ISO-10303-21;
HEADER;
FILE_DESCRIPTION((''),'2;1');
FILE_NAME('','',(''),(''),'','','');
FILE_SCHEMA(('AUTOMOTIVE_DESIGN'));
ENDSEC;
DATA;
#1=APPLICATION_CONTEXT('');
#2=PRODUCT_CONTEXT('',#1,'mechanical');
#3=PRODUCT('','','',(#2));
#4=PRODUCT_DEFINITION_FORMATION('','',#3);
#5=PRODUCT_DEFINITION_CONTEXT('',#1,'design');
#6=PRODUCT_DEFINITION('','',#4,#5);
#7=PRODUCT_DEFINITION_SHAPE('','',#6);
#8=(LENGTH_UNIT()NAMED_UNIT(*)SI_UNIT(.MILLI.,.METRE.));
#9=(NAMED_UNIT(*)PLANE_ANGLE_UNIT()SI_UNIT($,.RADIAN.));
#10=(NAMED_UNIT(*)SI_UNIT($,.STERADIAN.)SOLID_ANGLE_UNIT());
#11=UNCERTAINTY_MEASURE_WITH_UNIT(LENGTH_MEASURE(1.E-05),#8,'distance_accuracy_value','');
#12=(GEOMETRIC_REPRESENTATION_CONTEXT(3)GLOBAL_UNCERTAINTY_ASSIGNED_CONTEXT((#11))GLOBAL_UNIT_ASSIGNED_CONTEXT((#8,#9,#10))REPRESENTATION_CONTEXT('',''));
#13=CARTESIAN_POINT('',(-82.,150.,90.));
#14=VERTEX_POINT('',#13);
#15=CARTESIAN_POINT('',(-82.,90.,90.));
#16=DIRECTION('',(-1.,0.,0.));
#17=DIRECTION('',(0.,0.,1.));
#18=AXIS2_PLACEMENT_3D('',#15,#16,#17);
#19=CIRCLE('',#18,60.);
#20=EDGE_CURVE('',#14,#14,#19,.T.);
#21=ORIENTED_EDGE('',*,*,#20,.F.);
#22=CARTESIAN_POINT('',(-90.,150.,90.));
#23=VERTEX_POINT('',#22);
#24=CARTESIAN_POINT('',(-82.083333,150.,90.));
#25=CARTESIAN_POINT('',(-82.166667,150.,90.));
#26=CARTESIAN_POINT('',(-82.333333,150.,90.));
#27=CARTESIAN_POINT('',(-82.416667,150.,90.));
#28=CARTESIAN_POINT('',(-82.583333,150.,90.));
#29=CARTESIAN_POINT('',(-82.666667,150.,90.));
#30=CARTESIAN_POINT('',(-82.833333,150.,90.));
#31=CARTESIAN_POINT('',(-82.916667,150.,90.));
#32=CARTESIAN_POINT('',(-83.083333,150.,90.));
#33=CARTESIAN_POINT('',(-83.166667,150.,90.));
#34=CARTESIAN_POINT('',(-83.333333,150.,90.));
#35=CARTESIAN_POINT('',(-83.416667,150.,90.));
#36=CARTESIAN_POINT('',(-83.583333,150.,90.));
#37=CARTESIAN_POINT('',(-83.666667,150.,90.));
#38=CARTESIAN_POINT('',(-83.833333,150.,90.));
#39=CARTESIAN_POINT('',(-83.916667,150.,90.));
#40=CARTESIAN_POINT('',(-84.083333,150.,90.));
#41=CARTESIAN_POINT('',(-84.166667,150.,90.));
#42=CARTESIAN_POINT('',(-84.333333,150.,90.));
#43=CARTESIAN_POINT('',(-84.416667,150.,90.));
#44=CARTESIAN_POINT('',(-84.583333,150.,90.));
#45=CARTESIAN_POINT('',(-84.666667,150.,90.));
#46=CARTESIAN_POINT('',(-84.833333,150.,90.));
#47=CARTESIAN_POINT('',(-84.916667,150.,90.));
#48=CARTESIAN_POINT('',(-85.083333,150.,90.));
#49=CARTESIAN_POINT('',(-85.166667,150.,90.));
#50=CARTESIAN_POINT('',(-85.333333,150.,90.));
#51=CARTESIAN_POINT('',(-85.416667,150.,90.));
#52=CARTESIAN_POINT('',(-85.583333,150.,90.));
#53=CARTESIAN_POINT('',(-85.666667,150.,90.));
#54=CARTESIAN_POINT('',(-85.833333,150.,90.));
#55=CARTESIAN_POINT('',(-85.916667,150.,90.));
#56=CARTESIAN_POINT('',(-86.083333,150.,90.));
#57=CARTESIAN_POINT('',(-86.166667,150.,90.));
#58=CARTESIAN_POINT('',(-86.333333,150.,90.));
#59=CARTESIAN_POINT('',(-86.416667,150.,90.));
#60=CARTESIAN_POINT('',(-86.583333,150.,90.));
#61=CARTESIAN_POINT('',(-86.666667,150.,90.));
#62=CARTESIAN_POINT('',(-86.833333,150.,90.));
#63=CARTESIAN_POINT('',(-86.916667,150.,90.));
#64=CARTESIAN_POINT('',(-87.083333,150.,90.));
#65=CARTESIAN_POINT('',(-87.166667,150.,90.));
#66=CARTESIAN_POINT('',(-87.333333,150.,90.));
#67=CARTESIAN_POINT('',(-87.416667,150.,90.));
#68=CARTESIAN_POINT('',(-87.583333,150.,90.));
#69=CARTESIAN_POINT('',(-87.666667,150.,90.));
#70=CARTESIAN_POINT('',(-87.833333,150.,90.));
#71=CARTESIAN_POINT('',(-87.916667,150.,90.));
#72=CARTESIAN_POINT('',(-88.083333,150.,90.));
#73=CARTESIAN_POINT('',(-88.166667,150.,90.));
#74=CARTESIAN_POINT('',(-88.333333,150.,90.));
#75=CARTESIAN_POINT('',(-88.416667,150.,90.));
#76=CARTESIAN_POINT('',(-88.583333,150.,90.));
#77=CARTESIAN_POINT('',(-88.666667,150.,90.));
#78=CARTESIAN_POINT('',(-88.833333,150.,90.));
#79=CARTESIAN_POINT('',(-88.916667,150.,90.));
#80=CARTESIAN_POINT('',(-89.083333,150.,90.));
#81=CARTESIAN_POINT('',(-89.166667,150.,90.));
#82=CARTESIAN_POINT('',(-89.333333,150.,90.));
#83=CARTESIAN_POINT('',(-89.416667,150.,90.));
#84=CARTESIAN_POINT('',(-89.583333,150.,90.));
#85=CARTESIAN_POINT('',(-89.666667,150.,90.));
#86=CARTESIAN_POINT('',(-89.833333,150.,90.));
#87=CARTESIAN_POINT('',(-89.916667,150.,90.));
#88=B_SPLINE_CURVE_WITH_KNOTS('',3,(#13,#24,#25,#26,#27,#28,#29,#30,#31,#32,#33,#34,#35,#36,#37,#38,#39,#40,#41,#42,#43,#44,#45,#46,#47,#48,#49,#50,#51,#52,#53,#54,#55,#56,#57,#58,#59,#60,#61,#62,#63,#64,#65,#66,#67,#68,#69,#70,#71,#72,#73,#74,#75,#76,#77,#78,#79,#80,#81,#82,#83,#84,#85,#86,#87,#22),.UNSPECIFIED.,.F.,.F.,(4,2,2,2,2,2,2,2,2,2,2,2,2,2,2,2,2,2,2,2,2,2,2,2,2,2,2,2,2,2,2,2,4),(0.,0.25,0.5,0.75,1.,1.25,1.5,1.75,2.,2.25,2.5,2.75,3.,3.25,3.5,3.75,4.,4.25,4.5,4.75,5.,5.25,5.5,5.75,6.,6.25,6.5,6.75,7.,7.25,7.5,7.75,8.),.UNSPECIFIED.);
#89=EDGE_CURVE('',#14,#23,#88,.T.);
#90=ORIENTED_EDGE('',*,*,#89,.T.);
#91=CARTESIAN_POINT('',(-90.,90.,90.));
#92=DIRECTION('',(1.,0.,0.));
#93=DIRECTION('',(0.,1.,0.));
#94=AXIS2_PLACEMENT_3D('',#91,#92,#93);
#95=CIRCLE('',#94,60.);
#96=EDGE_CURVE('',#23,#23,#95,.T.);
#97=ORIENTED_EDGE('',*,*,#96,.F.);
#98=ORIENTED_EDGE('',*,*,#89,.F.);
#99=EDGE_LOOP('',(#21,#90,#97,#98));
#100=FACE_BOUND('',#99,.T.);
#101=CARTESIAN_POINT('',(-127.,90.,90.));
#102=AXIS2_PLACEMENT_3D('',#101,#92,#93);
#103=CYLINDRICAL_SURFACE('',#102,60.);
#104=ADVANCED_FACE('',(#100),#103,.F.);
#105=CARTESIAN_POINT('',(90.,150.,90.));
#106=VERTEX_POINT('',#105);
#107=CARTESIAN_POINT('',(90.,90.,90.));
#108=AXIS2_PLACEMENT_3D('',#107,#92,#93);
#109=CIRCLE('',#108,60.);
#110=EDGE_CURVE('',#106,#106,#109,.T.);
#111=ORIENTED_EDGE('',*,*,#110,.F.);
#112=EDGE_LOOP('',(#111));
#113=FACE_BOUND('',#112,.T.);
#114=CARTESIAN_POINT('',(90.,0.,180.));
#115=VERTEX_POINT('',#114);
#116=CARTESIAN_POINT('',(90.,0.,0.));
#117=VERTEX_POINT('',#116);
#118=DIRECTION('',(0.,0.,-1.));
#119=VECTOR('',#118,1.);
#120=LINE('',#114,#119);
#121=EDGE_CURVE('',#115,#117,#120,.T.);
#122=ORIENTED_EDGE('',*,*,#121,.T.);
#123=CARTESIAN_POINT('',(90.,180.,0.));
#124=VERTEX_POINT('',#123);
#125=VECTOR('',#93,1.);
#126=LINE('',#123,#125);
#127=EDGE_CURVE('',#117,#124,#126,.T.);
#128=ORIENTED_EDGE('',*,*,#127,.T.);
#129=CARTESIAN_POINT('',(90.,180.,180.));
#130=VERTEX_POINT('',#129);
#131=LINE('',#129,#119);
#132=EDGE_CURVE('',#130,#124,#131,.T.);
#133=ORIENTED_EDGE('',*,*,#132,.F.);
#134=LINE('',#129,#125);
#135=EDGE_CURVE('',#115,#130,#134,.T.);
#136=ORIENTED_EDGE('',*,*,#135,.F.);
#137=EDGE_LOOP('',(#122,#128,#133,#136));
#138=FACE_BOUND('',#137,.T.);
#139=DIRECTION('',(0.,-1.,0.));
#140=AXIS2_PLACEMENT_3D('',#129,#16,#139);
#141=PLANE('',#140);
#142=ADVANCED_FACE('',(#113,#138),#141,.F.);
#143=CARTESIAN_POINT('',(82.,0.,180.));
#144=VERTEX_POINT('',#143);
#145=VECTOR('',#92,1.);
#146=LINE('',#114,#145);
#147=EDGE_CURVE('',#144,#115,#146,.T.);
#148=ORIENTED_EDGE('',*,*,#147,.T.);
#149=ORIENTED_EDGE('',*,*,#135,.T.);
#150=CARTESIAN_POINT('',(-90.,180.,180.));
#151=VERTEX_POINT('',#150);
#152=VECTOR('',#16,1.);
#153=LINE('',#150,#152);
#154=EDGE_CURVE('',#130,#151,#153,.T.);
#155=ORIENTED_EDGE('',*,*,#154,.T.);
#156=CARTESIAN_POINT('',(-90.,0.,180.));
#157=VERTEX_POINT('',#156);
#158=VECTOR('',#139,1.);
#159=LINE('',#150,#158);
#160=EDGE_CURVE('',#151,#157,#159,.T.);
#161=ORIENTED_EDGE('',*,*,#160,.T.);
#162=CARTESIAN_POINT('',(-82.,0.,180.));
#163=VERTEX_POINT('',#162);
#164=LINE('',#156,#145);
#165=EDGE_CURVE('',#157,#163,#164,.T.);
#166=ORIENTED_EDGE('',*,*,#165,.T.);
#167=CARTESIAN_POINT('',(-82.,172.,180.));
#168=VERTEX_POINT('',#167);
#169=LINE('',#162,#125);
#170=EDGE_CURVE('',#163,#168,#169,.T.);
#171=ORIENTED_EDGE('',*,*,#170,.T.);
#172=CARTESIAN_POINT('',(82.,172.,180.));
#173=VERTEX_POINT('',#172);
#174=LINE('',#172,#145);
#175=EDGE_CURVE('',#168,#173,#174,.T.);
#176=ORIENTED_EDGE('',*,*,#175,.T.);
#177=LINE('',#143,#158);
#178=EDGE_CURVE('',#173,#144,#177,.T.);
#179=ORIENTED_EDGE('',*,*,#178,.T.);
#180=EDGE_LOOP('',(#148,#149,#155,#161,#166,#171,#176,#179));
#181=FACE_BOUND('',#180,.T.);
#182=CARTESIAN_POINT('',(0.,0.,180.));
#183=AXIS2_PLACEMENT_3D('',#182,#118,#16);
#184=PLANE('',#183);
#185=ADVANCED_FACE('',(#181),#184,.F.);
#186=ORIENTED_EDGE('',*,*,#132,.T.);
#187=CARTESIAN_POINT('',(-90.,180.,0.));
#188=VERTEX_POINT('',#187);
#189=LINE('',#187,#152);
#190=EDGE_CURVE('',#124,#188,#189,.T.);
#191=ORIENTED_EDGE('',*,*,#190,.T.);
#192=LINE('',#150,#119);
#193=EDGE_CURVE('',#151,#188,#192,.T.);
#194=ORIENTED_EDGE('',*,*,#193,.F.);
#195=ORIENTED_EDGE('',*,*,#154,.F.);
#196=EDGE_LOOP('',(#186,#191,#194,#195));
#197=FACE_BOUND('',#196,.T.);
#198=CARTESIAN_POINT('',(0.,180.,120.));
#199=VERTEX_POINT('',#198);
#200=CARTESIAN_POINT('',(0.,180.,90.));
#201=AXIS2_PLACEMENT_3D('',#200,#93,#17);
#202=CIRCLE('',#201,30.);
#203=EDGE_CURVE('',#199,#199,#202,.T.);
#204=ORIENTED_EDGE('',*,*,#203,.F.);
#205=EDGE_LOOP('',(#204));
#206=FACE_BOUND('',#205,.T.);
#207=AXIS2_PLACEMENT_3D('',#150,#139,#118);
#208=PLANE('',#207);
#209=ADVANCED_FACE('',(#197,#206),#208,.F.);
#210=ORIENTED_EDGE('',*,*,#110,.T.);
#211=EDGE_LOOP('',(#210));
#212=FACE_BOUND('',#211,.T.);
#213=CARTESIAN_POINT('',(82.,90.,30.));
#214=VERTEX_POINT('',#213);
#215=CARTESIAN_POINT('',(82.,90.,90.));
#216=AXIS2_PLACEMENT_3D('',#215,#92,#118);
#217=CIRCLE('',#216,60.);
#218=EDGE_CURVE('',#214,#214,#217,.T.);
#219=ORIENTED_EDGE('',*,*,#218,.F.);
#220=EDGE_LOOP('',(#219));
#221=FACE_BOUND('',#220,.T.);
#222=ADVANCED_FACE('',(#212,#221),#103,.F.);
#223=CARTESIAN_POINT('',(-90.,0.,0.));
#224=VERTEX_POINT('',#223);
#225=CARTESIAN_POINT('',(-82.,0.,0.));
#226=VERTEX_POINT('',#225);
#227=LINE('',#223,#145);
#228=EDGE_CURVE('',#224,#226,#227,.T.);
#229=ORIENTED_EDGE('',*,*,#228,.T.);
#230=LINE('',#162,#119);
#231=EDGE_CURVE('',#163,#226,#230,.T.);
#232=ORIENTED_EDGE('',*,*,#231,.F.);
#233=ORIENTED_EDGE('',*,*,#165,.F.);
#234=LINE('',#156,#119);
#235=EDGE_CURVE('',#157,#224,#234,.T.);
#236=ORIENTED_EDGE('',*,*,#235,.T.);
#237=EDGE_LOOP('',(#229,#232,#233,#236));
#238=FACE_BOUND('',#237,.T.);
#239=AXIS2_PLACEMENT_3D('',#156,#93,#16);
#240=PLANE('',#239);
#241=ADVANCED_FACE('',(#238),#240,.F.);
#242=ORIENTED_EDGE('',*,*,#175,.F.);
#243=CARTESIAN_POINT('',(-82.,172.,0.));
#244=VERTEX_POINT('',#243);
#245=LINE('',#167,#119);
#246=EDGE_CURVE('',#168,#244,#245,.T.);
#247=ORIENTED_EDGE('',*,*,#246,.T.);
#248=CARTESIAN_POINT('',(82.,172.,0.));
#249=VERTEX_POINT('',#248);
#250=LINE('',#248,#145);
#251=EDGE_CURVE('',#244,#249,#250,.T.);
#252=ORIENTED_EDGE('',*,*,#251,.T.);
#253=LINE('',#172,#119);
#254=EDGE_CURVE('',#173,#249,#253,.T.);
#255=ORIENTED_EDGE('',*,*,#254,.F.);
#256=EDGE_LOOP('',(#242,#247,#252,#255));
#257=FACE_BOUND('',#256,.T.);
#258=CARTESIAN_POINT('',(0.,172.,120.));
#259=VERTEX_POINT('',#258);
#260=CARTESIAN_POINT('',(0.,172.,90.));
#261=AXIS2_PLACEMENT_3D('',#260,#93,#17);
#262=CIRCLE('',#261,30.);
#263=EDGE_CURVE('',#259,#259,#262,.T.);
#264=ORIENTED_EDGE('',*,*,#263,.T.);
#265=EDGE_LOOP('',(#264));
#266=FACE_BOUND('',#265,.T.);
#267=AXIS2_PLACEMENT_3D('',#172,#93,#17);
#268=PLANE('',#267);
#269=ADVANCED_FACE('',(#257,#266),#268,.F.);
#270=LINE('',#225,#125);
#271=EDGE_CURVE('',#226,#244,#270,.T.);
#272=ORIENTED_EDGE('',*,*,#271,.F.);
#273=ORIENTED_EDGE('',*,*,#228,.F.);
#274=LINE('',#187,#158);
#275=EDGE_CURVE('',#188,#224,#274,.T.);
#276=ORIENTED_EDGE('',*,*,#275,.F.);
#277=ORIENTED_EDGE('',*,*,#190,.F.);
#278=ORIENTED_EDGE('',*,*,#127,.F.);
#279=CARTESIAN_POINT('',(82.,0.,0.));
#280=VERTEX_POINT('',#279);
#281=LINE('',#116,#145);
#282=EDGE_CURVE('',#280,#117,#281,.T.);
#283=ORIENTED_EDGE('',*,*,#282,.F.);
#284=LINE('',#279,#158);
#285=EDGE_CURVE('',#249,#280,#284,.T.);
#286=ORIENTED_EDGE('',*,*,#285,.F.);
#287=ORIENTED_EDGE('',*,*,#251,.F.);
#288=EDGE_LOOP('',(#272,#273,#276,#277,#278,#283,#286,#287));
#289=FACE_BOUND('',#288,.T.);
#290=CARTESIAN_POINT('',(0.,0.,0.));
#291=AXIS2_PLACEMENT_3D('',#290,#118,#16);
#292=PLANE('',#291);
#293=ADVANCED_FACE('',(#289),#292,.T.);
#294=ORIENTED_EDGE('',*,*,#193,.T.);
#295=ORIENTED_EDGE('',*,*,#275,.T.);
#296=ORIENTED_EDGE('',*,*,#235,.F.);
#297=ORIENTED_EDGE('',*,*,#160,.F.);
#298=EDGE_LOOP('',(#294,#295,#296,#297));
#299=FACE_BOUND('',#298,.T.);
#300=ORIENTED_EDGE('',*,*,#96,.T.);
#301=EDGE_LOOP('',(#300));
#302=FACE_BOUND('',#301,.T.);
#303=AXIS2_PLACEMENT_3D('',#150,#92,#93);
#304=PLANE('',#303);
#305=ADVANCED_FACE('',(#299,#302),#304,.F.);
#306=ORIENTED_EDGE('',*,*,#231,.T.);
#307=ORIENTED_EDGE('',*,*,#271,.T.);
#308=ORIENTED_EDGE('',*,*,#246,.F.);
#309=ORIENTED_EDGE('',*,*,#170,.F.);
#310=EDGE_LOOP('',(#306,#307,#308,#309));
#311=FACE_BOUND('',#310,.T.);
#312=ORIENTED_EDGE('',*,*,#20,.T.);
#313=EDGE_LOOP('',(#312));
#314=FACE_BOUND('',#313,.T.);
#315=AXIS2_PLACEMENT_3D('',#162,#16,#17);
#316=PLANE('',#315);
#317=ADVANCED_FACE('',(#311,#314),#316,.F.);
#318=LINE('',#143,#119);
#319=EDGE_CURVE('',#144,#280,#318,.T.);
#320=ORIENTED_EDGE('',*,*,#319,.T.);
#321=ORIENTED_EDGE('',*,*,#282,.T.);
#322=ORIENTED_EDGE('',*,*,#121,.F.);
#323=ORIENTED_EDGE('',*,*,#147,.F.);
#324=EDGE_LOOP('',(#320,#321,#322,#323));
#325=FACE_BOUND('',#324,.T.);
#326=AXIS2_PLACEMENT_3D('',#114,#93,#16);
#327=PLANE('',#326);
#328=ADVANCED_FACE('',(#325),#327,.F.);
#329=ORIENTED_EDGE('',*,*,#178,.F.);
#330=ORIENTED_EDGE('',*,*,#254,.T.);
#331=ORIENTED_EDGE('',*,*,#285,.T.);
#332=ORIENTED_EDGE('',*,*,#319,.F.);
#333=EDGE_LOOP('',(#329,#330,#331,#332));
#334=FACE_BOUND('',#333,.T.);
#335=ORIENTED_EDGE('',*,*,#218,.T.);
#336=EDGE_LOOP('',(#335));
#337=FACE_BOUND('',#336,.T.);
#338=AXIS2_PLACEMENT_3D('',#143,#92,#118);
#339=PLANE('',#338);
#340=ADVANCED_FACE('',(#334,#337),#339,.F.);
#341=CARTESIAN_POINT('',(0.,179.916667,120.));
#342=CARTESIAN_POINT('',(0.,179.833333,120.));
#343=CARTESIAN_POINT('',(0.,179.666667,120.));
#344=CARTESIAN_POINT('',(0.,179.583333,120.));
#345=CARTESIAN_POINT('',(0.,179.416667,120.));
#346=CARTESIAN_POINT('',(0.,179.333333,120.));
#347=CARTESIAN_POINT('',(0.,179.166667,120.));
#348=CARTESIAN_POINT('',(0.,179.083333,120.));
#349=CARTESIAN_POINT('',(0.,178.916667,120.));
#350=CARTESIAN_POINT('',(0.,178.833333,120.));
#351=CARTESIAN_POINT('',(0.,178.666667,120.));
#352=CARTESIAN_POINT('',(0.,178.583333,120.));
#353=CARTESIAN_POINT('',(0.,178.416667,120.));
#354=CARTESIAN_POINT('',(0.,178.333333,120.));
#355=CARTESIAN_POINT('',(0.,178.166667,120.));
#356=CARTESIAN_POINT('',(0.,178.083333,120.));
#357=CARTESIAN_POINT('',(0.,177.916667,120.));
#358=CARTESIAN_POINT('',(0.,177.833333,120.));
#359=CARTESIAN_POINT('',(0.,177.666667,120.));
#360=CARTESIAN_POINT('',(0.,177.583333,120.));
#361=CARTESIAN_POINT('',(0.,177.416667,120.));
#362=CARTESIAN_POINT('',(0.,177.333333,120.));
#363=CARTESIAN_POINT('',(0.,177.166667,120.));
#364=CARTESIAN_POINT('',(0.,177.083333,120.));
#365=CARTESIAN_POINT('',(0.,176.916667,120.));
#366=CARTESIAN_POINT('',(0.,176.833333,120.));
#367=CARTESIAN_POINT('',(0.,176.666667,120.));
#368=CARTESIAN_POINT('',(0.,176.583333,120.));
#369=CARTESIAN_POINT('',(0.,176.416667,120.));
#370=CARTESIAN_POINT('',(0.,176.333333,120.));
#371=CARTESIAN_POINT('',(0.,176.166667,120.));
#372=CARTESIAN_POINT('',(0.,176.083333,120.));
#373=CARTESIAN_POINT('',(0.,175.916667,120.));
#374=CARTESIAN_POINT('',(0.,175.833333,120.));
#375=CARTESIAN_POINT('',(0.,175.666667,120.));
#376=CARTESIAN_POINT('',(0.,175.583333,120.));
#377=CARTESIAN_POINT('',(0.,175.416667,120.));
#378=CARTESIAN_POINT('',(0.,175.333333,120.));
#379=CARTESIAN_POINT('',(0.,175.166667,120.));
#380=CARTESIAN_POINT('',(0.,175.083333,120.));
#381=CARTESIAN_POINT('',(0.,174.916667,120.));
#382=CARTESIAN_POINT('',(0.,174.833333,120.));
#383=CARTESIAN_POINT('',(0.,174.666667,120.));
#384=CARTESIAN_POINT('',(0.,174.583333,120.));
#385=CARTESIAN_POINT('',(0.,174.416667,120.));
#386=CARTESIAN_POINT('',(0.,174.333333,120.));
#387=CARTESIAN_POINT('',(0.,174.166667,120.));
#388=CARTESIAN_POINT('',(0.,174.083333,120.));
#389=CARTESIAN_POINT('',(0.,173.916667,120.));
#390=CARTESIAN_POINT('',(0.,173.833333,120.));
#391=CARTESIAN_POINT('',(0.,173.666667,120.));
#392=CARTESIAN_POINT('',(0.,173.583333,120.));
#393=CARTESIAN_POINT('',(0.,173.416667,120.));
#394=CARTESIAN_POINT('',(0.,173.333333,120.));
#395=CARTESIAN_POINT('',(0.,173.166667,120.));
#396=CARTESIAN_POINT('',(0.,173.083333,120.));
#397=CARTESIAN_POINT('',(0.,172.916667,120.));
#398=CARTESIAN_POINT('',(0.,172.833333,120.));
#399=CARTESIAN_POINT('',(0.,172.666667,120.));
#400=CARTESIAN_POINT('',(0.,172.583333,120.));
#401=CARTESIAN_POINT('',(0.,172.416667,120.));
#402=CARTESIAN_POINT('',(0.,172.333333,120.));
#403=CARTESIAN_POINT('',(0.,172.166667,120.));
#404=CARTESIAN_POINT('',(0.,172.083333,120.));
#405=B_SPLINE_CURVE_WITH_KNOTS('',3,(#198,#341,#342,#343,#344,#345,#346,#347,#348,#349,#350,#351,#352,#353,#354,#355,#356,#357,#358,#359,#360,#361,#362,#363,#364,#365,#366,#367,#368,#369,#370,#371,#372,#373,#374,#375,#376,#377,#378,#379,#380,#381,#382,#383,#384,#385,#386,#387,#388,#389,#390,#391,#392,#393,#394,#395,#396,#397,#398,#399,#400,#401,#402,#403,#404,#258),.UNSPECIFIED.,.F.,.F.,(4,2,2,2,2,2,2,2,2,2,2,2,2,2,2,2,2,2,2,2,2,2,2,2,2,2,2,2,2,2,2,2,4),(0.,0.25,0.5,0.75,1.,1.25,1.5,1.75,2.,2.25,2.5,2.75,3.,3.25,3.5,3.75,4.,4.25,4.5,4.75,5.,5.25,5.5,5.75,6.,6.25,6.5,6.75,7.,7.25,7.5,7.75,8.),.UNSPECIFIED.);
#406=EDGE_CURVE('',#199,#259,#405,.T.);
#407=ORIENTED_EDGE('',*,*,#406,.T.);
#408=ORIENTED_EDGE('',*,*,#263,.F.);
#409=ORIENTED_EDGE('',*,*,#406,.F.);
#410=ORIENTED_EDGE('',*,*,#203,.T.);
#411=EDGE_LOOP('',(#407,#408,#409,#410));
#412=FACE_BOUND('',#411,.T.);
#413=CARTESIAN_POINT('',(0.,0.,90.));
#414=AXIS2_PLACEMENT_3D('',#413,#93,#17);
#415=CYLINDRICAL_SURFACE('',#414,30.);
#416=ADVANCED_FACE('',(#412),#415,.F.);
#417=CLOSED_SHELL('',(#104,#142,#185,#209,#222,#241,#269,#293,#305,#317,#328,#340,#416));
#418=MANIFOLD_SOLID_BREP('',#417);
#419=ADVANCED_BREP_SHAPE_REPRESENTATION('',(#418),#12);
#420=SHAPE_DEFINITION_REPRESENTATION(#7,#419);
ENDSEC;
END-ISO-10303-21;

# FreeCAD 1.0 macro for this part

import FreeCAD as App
import Part
import Sketcher

V = App.Vector


def add_polygon(sketch, points):
    """Adds a closed chain of lines whose ends are joined by coincident constraints."""
    first, n = sketch.GeometryCount, len(points)
    for a, b in zip(points, points[1:] + points[:1]):
        sketch.addGeometry(Part.LineSegment(App.Vector(*a, 0), App.Vector(*b, 0)), False)
    for i in range(n):
        sketch.addConstraint(Sketcher.Constraint("Coincident", first + i, 2, first + (i + 1) % n, 1))

doc = App.newDocument("Part")
body = doc.addObject("PartDesign::Body", "Body")

sketch1 = body.newObject("Sketcher::SketchObject", "Sketch")
sketch1.AttachmentSupport = (doc.getObject("XY_Plane"), [""])
sketch1.MapMode = "FlatFace"
add_polygon(sketch1, [(90, 180), (-90, 180), (-90, 0), (-82, 0), (-82, 172), (82, 172), (82, 0), (90, 0)])
sketch1.addConstraint([
    Sketcher.Constraint("Horizontal", 0),
    Sketcher.Constraint("Vertical", 1),
    Sketcher.Constraint("Horizontal", 2),
    Sketcher.Constraint("Vertical", 3),
    Sketcher.Constraint("Horizontal", 4),
    Sketcher.Constraint("Vertical", 5),
    Sketcher.Constraint("Horizontal", 6),
    Sketcher.Constraint("Vertical", 7),
    Sketcher.Constraint("Symmetric", 2, 2, 5, 2, -1, 1),
    Sketcher.Constraint("Symmetric", 1, 2, 6, 2, -2),
    Sketcher.Constraint("Equal", 0, 1),
    Sketcher.Constraint("DistanceX", 0, 2, 0, 1, 180.0),
    Sketcher.Constraint("DistanceX", 2, 1, 2, 2, 8.0),
    Sketcher.Constraint("DistanceY", 3, 1, 3, 2, 172.0),
])
pad1 = body.newObject("PartDesign::Pad", "Pad")
pad1.Profile = sketch1
pad1.Length = 180

sketch2 = body.newObject("Sketcher::SketchObject", "Sketch001")
sketch2.AttachmentSupport = (doc.getObject("XZ_Plane"), [""])
sketch2.MapMode = "FlatFace"
sketch2.AttachmentOffset = App.Placement(V(0, 0, -180), App.Rotation())
sketch2.addGeometry(Part.Circle(V(0, 90, 0), V(0, 0, 1), 30), False)
sketch2.addConstraint([
    Sketcher.Constraint("PointOnObject", 0, 3, -2),
    Sketcher.Constraint("Diameter", 0, 60.0),
    Sketcher.Constraint("DistanceY", -1, 1, 0, 3, 90.0),
])
pocket1 = body.newObject("PartDesign::Pocket", "Pocket")
pocket1.Profile = sketch2
pocket1.Length = 180
pocket1.Reversed = True

sketch3 = body.newObject("Sketcher::SketchObject", "Sketch002")
sketch3.AttachmentSupport = (doc.getObject("YZ_Plane"), [""])
sketch3.MapMode = "FlatFace"
sketch3.AttachmentOffset = App.Placement(V(0, 0, 90), App.Rotation())
sketch3.addGeometry(Part.Circle(V(90, 90, 0), V(0, 0, 1), 60), False)
sketch3.addConstraint([
    Sketcher.Constraint("Diameter", 0, 120.0),
    Sketcher.Constraint("DistanceX", -1, 1, 0, 3, 90.0),
    Sketcher.Constraint("DistanceY", -1, 1, 0, 3, 90.0),
])
pocket2 = body.newObject("PartDesign::Pocket", "Pocket001")
pocket2.Profile = sketch3
pocket2.Length = 217

doc.recompute()
